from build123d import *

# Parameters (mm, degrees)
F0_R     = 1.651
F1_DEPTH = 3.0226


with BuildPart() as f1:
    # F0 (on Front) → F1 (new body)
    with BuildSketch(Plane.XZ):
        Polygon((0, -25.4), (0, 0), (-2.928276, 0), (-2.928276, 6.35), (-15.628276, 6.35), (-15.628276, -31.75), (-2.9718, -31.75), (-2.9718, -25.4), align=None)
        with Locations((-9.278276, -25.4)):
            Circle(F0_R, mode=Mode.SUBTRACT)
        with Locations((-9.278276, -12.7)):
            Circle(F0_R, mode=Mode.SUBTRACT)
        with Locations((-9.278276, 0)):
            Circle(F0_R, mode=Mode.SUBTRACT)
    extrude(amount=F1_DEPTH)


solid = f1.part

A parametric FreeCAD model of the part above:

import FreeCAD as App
import Part
import Sketcher

V = App.Vector
Q = App.Units.Quantity

doc = App.newDocument("Part")
params = doc.addObject("Spreadsheet::Sheet", "Params")
for row, (alias, value) in enumerate([
    ("sketch1_diameter", "0.13 in"),
    ("sketch1_height", "1 in"),
    ("sketch1_width", "0.5 in"),
    ("sketch1_height2", "1.5 in"),
    ("sketch1_width2", "0.117 in"),
    ("pad1_length", "0.119 in"),
], start=1):
    params.set(f"A{row}", alias)
    params.set(f"B{row}", "=" + value)
    params.setAlias(f"B{row}", alias)

body = doc.addObject("PartDesign::Body", "Body")

# Sketch on XZ plane
sketch1 = body.newObject("Sketcher::SketchObject", "Sketch")
sketch1.AttachmentSupport = (doc.getObject("XZ_Plane"), [""])
sketch1.MapMode = "FlatFace"
sketch1.addGeometry([
    Part.LineSegment(V(0, -25.4, 0), V(0, 0, 0)),  # 0
    Part.LineSegment(V(0, 0, 0), V(-2.9, 0, 0)),  # 1
    Part.LineSegment(V(-2.9, 0, 0), V(-2.9, 6.3, 0)),  # 2
    Part.LineSegment(V(-2.9, 6.3, 0), V(-15.6, 6.3, 0)),  # 3
    Part.LineSegment(V(-15.6, 6.3, 0), V(-15.6, -31.8, 0)),  # 4
    Part.LineSegment(V(-15.6, -31.8, 0), V(-3, -31.8, 0)),  # 5
    Part.LineSegment(V(-3, -31.8, 0), V(-3, -25.4, 0)),  # 6
    Part.LineSegment(V(-3, -25.4, 0), V(0, -25.4, 0)),  # 7
    Part.Circle(V(-9.3, -25.4, 0), V(0, 0, 1), 1.7),  # 8
    Part.Circle(V(-9.3, -12.7, 0), V(0, 0, 1), 1.7),  # 9
    Part.Circle(V(-9.3, 0, 0), V(0, 0, 1), 1.7),  # 10
], False)
sketch1.addConstraint([
    Sketcher.Constraint("Coincident", 0, 2, 1, 1),
    Sketcher.Constraint("Coincident", 1, 2, 2, 1),
    Sketcher.Constraint("Coincident", 2, 2, 3, 1),
    Sketcher.Constraint("Coincident", 3, 2, 4, 1),
    Sketcher.Constraint("Coincident", 4, 2, 5, 1),
    Sketcher.Constraint("Coincident", 5, 2, 6, 1),
    Sketcher.Constraint("Coincident", 6, 2, 7, 1),
    Sketcher.Constraint("Coincident", 7, 2, 0, 1),
    Sketcher.Constraint("Vertical", 0),
    Sketcher.Constraint("Horizontal", 1),
    Sketcher.Constraint("Vertical", 2),
    Sketcher.Constraint("Horizontal", 3),
    Sketcher.Constraint("Vertical", 4),
    Sketcher.Constraint("Horizontal", 5),
    Sketcher.Constraint("Vertical", 6),
    Sketcher.Constraint("Horizontal", 7),
    Sketcher.Constraint("Coincident", 0, 2, -1, 1),
    Sketcher.Constraint("Equal", 8, 9),
    Sketcher.Constraint("Equal", 9, 10),
    Sketcher.Constraint("PointOnObject", 10, 3, -1),
    Sketcher.Constraint("Horizontal", 8, 3, 6, 2),
    Sketcher.Constraint("Vertical", 8, 3, 9, 3),
    Sketcher.Constraint("Vertical", 9, 3, 10, 3),
    Sketcher.Constraint("Equal", 2, 6),
    Sketcher.Constraint("Diameter", 8, Q("0.13 in")),
    Sketcher.Constraint("DistanceY", 0, 1, 0, 2, Q("1 in")),
    Sketcher.Constraint("DistanceX", 3, 2, 3, 1, Q("0.5 in")),
    Sketcher.Constraint("DistanceY", 4, 2, 4, 1, Q("1.5 in")),
    Sketcher.Constraint("DistanceY", 9, 3, -1, 1, Q("0.5 in")),
    Sketcher.Constraint("DistanceX", 7, 1, 7, 2, Q("0.117 in")),
    Sketcher.Constraint("DistanceX", 10, 3, 1, 2, Q("0.25 in")),
    Sketcher.Constraint("DistanceX", 1, 2, 1, 1, 2.928276),
])
sketch1.setExpression("Constraints[24]", "Params.sketch1_diameter")
sketch1.setExpression("Constraints[25]", "Params.sketch1_height")
sketch1.setExpression("Constraints[26]", "Params.sketch1_width")
sketch1.setExpression("Constraints[27]", "Params.sketch1_height2")
sketch1.setExpression("Constraints[29]", "Params.sketch1_width2")
pad1 = body.newObject("PartDesign::Pad", "Pad")
pad1.Profile = sketch1
pad1.setExpression("Length", "Params.pad1_length")

doc.recompute()
